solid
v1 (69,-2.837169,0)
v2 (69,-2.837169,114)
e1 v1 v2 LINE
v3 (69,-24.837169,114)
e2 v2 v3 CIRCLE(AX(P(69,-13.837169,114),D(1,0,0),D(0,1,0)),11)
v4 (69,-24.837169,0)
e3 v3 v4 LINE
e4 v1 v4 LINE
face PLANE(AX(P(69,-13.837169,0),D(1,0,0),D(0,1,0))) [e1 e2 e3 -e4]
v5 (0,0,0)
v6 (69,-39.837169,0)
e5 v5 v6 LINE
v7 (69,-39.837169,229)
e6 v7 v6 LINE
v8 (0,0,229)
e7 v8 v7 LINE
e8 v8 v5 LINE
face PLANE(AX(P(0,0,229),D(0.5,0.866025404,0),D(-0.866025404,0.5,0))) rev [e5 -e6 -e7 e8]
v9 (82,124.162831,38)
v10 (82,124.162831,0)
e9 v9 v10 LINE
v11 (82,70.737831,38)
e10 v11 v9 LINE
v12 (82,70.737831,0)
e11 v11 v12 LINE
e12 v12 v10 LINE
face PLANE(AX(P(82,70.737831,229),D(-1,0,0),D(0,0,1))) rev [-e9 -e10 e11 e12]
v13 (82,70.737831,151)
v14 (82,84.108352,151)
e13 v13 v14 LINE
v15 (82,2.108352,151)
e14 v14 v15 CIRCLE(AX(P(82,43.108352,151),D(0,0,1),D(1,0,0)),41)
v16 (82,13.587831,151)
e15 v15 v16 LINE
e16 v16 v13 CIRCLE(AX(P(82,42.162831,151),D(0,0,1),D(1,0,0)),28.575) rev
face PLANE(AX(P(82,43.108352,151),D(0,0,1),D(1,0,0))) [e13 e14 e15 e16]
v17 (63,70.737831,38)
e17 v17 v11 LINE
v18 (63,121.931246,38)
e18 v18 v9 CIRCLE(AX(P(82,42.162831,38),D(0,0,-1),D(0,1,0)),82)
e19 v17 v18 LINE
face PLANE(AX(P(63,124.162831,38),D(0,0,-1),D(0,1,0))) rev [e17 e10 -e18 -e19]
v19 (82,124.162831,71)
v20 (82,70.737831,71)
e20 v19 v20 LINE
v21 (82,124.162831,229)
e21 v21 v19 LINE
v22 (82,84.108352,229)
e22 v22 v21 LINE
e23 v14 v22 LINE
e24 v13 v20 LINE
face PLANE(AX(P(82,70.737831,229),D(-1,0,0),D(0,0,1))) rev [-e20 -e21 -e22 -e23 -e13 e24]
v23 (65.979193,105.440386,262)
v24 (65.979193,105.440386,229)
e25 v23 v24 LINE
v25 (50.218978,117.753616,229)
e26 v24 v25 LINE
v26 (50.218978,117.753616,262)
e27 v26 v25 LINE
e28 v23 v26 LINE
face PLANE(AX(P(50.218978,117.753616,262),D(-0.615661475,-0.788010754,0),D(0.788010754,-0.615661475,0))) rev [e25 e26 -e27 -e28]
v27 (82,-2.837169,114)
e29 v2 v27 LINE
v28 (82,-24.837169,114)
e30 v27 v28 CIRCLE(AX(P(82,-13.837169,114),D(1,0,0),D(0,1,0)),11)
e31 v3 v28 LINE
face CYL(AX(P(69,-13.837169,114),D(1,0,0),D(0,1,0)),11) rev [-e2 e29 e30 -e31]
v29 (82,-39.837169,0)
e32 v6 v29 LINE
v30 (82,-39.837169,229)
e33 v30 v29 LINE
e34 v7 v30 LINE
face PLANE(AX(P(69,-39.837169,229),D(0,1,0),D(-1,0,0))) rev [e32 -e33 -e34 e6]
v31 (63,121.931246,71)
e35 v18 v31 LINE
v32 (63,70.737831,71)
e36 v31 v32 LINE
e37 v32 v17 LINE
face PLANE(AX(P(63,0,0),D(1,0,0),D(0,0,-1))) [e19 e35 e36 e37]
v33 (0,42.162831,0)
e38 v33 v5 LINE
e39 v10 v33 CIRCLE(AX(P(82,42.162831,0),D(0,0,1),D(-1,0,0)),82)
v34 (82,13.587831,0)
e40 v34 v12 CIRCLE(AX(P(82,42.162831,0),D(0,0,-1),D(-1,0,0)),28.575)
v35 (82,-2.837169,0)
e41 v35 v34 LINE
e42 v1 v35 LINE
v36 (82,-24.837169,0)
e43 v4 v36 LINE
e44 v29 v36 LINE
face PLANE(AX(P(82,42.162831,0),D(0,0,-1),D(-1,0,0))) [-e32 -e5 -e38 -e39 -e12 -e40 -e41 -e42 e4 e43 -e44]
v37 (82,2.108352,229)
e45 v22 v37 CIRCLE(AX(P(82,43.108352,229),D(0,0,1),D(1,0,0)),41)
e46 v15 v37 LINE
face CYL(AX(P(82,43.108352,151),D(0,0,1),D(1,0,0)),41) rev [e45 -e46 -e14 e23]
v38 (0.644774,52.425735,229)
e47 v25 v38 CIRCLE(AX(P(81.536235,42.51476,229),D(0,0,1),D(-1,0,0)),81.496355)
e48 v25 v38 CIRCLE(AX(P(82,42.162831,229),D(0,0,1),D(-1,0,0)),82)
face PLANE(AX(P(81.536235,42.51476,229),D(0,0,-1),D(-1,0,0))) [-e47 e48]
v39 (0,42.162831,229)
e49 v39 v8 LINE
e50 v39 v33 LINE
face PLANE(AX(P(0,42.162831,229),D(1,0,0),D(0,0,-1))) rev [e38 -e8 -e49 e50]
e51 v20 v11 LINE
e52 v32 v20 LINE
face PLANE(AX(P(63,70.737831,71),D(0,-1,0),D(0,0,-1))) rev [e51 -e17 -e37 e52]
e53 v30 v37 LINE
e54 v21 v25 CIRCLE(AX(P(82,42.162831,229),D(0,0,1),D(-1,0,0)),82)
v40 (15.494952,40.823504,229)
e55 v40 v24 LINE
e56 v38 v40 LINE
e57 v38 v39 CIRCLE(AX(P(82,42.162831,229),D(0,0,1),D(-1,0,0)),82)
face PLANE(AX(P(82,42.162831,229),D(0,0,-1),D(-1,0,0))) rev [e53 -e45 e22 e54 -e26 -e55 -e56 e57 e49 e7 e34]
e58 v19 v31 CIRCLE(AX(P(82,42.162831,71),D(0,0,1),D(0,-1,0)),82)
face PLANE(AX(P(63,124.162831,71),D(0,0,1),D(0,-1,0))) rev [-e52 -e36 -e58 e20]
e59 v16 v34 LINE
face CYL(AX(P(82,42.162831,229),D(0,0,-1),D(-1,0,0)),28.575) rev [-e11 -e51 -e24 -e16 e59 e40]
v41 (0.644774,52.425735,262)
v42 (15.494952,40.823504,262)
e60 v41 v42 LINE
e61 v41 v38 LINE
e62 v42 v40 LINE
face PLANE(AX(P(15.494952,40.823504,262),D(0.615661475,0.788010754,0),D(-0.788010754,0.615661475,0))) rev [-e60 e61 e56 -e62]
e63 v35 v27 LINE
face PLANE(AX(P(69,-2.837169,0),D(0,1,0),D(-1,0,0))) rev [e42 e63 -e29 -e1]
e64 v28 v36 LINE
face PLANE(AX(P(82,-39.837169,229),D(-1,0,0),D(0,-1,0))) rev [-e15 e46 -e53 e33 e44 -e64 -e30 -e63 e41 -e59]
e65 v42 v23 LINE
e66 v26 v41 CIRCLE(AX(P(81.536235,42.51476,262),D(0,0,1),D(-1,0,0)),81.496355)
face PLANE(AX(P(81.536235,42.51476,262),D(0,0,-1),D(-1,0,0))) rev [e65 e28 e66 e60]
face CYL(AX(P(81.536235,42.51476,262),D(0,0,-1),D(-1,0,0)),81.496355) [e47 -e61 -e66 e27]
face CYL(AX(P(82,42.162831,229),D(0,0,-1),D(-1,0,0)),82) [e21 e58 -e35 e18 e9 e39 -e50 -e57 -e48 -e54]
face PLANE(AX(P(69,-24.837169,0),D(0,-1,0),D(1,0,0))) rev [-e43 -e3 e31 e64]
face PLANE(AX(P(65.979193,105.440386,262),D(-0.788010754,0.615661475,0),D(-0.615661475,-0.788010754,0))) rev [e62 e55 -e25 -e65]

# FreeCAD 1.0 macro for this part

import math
import FreeCAD as App
import Part
import Sketcher
Q = App.Units.Quantity

doc = App.newDocument("Part")
body = doc.addObject("PartDesign::Body", "Body")

# Sketch on XY plane
sketch1 = doc.addObject("Sketcher::SketchObject", "Sketch")
body.addObject(sketch1)
sketch1.AttachmentSupport = (doc.XY_Plane, [""])
sketch1.MapMode = "FlatFace"
sketch1.addGeometry([
    Part.LineSegment(App.Vector(0, 42, 0), App.Vector(0, 0, 0)),  # 0
    Part.LineSegment(App.Vector(0, 0, 0), App.Vector(69, -40, 0)),  # 1
    Part.LineSegment(App.Vector(69, -40, 0), App.Vector(82, -40, 0)),  # 2
    Part.LineSegment(App.Vector(82, -40, 0), App.Vector(82, 14, 0)),  # 3
    Part.ArcOfCircle(Part.Circle(App.Vector(82, 42, 0), App.Vector(0, 0, 1), 29), math.radians(90), math.radians(270)),  # 4
    Part.LineSegment(App.Vector(82, 71, 0), App.Vector(82, 124, 0)),  # 5
    Part.ArcOfCircle(Part.Circle(App.Vector(82, 42, 0), App.Vector(0, 0, 1), 82), math.radians(90), math.radians(180)),  # 6
], False)
sketch1.addConstraint([
    Sketcher.Constraint("Coincident", 0, 2, 1, 1),
    Sketcher.Constraint("Coincident", 1, 2, 2, 1),
    Sketcher.Constraint("Coincident", 2, 2, 3, 1),
    Sketcher.Constraint("Coincident", 3, 2, 4, 2),
    Sketcher.Constraint("Coincident", 4, 1, 5, 1),
    Sketcher.Constraint("Coincident", 5, 2, 6, 1),
    Sketcher.Constraint("Tangent", 6, 2, 0, 1),
    Sketcher.Constraint("Vertical", 0),
    Sketcher.Constraint("Horizontal", 2),
    Sketcher.Constraint("Vertical", 3),
    Sketcher.Constraint("Vertical", 5),
    Sketcher.Constraint("Coincident", 0, 2, -1, 1),
    Sketcher.Constraint("Coincident", 6, 3, 4, 3),
    Sketcher.Constraint("Vertical", 6, 3, 2, 2),
    Sketcher.Constraint("Vertical", 3, 2, 4, 1),
    Sketcher.Constraint("Equal", 3, 5),
    Sketcher.Constraint("Radius", 6, 82.0),
    Sketcher.Constraint("DistanceX", 2, 1, 2, 2, 13.0),
    Sketcher.Constraint("Angle", 1, Q("-30 deg")),
    Sketcher.Constraint("Radius", 4, 28.575),
])
pad1 = doc.addObject("PartDesign::Pad", "Pad")
body.addObject(pad1)
pad1.Profile = sketch1
pad1.Length = 229

# Sketch on XY plane
sketch2 = doc.addObject("Sketcher::SketchObject", "Sketch001")
body.addObject(sketch2)
sketch2.AttachmentSupport = (doc.XY_Plane, [""])
sketch2.MapMode = "FlatFace"
sketch2.AttachmentOffset = App.Placement(App.Vector(0, 0, 229), App.Rotation())
sketch2.addGeometry([
    Part.LineSegment(App.Vector(66, 105, 0), App.Vector(50, 118, 0)),
    Part.ArcOfCircle(Part.Circle(App.Vector(82, 43, 0), App.Vector(0, 0, 1), 81), math.radians(113), math.radians(173)),
    Part.LineSegment(App.Vector(1, 52, 0), App.Vector(15, 41, 0)),
    Part.LineSegment(App.Vector(15, 41, 0), App.Vector(66, 105, 0)),
], False)
sketch2.addConstraint([
    Sketcher.Constraint("Coincident", 0, 2, 1, 1),
    Sketcher.Constraint("Coincident", 1, 2, 2, 1),
    Sketcher.Constraint("Coincident", 2, 2, 3, 1),
    Sketcher.Constraint("Coincident", 3, 2, 0, 1),
    Sketcher.Constraint("Parallel", 0, 2),
    Sketcher.Constraint("Perpendicular", 2, 3),
    Sketcher.Constraint("Angle", 0, Q("142 deg")),
    Sketcher.Constraint("Distance", 0, 20.0),
    Sketcher.Constraint("Distance", 3, 82.0),
    Sketcher.Constraint("Radius", 1, 81.496355),
    Sketcher.Constraint("DistanceY", -1, 1, 1, 3, 42.51476),
    Sketcher.Constraint("DistanceX", -1, 1, 0, 2, 50.218978),
    Sketcher.Constraint("DistanceX", 1, 2, 1, 3, 80.891461),
])
pad2 = doc.addObject("PartDesign::Pad", "Pad001")
body.addObject(pad2)
pad2.Profile = sketch2
pad2.Length = 33

# Sketch on XY plane
sketch3 = doc.addObject("Sketcher::SketchObject", "Sketch002")
body.addObject(sketch3)
sketch3.AttachmentSupport = (doc.XY_Plane, [""])
sketch3.MapMode = "FlatFace"
sketch3.AttachmentOffset = App.Placement(App.Vector(0, 0, 229), App.Rotation())
sketch3.addGeometry([
    Part.LineSegment(App.Vector(82, 2, 0), App.Vector(82, 84, 0)),
    Part.ArcOfCircle(Part.Circle(App.Vector(82, 43, 0), App.Vector(0, 0, 1), 41), math.radians(90), math.radians(270)),
], False)
sketch3.addConstraint([
    Sketcher.Constraint("Coincident", 0, 1, 1, 2),
    Sketcher.Constraint("Coincident", 1, 1, 0, 2),
    Sketcher.Constraint("Vertical", 0),
    Sketcher.Constraint("Vertical", 1, 3, 0, 1),
    Sketcher.Constraint("Radius", 1, 41.0),
    Sketcher.Constraint("DistanceX", -1, 1, 1, 3, 82.0),
    Sketcher.Constraint("DistanceY", -1, 1, 1, 3, 43.108352),
])
pocket1 = doc.addObject("PartDesign::Pocket", "Pocket")
body.addObject(pocket1)
pocket1.Profile = sketch3
pocket1.Length = 78

# Sketch on YZ plane
sketch4 = doc.addObject("Sketcher::SketchObject", "Sketch003")
body.addObject(sketch4)
sketch4.AttachmentSupport = (doc.YZ_Plane, [""])
sketch4.MapMode = "FlatFace"
sketch4.AttachmentOffset = App.Placement(App.Vector(0, 0, 82), App.Rotation())
sketch4.addGeometry([
    Part.LineSegment(App.Vector(124, 71, 0), App.Vector(71, 71, 0)),
    Part.LineSegment(App.Vector(71, 71, 0), App.Vector(71, 38, 0)),
    Part.LineSegment(App.Vector(71, 38, 0), App.Vector(124, 38, 0)),
    Part.LineSegment(App.Vector(124, 38, 0), App.Vector(124, 71, 0)),
], False)
sketch4.addConstraint([
    Sketcher.Constraint("Coincident", 0, 2, 1, 1),
    Sketcher.Constraint("Coincident", 1, 2, 2, 1),
    Sketcher.Constraint("Coincident", 2, 2, 3, 1),
    Sketcher.Constraint("Coincident", 3, 2, 0, 1),
    Sketcher.Constraint("Horizontal", 0),
    Sketcher.Constraint("Vertical", 1),
    Sketcher.Constraint("Horizontal", 2),
    Sketcher.Constraint("Vertical", 3),
    Sketcher.Constraint("DistanceY", 1, 2, 1, 1, 33.0),
    Sketcher.Constraint("DistanceY", -1, 1, 0, 2, 71.0),
    Sketcher.Constraint("DistanceX", 0, 2, 0, 1, 53.425),
    Sketcher.Constraint("DistanceX", -1, 1, 0, 2, 70.737831),
])
pocket2 = doc.addObject("PartDesign::Pocket", "Pocket001")
body.addObject(pocket2)
pocket2.Profile = sketch4
pocket2.Length = 19

# Sketch on YZ plane
sketch5 = doc.addObject("Sketcher::SketchObject", "Sketch004")
body.addObject(sketch5)
sketch5.AttachmentSupport = (doc.YZ_Plane, [""])
sketch5.MapMode = "FlatFace"
sketch5.AttachmentOffset = App.Placement(App.Vector(0, 0, 82), App.Rotation())
sketch5.addGeometry([
    Part.LineSegment(App.Vector(-25, 114, 0), App.Vector(-25, 0, 0)),
    Part.ArcOfCircle(Part.Circle(App.Vector(-14, 0, 0), App.Vector(0, 0, 1), 11), math.radians(180), math.radians(360)),
    Part.LineSegment(App.Vector(-3, 0, 0), App.Vector(-3, 114, 0)),
    Part.ArcOfCircle(Part.Circle(App.Vector(-14, 114, 0), App.Vector(0, 0, 1), 11), math.radians(0), math.radians(180)),
], False)
sketch5.addConstraint([
    Sketcher.Constraint("Tangent", 0, 2, 1, 1),
    Sketcher.Constraint("Tangent", 1, 2, 2, 1),
    Sketcher.Constraint("Tangent", 2, 2, 3, 1),
    Sketcher.Constraint("Tangent", 3, 2, 0, 1),
    Sketcher.Constraint("Vertical", 0),
    Sketcher.Constraint("Vertical", 2),
    Sketcher.Constraint("PointOnObject", 1, 3, -1),
    Sketcher.Constraint("Radius", 1, 11.0),
    Sketcher.Constraint("DistanceY", 0, 2, 0, 1, 114.0),
    Sketcher.Constraint("DistanceX", 1, 3, -1, 1, 13.837169),
])
pocket3 = doc.addObject("PartDesign::Pocket", "Pocket002")
body.addObject(pocket3)
pocket3.Profile = sketch5
pocket3.Length = 13

doc.recompute()
